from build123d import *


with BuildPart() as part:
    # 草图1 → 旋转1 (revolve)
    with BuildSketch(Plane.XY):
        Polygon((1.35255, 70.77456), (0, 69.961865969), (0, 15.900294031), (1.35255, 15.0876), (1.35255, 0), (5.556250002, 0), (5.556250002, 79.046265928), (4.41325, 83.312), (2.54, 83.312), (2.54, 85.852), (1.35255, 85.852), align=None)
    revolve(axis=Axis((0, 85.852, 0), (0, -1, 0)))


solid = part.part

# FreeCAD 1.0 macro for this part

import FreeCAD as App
import Part
import Sketcher

V = App.Vector
Q = App.Units.Quantity


def add_polygon(sketch, points):
    """Adds a closed chain of lines whose ends are joined by coincident constraints."""
    first, n = sketch.GeometryCount, len(points)
    for a, b in zip(points, points[1:] + points[:1]):
        sketch.addGeometry(Part.LineSegment(App.Vector(*a, 0), App.Vector(*b, 0)), False)
    for i in range(n):
        sketch.addConstraint(Sketcher.Constraint("Coincident", first + i, 2, first + (i + 1) % n, 1))

doc = App.newDocument("Part")
body = doc.addObject("PartDesign::Body", "Body")

sketch1 = body.newObject("Sketcher::SketchObject", "Sketch")
sketch1.AttachmentSupport = (doc.getObject("XY_Plane"), [""])
sketch1.MapMode = "FlatFace"
add_polygon(sketch1, [(1.4, 70.8), (0, 70), (0, 15.9), (1.4, 15.1), (1.4, 0), (5.6, 0), (5.6, 79), (4.4, 83.3), (2.5, 83.3), (2.5, 85.9), (1.4, 85.9)])
sketch1.addConstraint([
    Sketcher.Constraint("Vertical", 1),
    Sketcher.Constraint("Vertical", 3),
    Sketcher.Constraint("Horizontal", 4),
    Sketcher.Constraint("Vertical", 5),
    Sketcher.Constraint("Horizontal", 7),
    Sketcher.Constraint("Vertical", 8),
    Sketcher.Constraint("Horizontal", 9),
    Sketcher.Constraint("Vertical", 10),
    Sketcher.Constraint("PointOnObject", 0, 2, -2),
    Sketcher.Constraint("PointOnObject", 3, 2, -1),
    Sketcher.Constraint("Vertical", 3, 2, 9, 2),
    Sketcher.Constraint("Equal", 0, 2),
    Sketcher.Constraint("DistanceY", 8, 1, 8, 2, Q("0.1 in")),
    Sketcher.Constraint("Angle", 0, Q("-149 deg")),
    Sketcher.Constraint("Angle", 6, Q("105 deg")),
    Sketcher.Constraint("DistanceX", -1, 1, 7, 2, Q("0.1 in")),
    Sketcher.Constraint("DistanceY", 3, 2, 3, 1, Q("0.594 in")),
    Sketcher.Constraint("DistanceY", -1, 1, 6, 2, Q("3.28 in")),
    Sketcher.Constraint("DistanceX", 4, 1, 4, 2, Q("0.1655 in")),
    Sketcher.Constraint("DistanceY", 10, 2, 10, 1, Q("0.5936 in")),
    Sketcher.Constraint("DistanceX", -1, 1, 4, 2, Q("0.21875 in")),
    Sketcher.Constraint("DistanceX", 6, 2, 5, 2, Q("0.045 in")),
])
revolution = body.newObject("PartDesign::Revolution", "Revolution")
revolution.Profile = sketch1
revolution.ReferenceAxis = (sketch1, ["V_Axis"])
revolution.Angle = 360

doc.recompute()
